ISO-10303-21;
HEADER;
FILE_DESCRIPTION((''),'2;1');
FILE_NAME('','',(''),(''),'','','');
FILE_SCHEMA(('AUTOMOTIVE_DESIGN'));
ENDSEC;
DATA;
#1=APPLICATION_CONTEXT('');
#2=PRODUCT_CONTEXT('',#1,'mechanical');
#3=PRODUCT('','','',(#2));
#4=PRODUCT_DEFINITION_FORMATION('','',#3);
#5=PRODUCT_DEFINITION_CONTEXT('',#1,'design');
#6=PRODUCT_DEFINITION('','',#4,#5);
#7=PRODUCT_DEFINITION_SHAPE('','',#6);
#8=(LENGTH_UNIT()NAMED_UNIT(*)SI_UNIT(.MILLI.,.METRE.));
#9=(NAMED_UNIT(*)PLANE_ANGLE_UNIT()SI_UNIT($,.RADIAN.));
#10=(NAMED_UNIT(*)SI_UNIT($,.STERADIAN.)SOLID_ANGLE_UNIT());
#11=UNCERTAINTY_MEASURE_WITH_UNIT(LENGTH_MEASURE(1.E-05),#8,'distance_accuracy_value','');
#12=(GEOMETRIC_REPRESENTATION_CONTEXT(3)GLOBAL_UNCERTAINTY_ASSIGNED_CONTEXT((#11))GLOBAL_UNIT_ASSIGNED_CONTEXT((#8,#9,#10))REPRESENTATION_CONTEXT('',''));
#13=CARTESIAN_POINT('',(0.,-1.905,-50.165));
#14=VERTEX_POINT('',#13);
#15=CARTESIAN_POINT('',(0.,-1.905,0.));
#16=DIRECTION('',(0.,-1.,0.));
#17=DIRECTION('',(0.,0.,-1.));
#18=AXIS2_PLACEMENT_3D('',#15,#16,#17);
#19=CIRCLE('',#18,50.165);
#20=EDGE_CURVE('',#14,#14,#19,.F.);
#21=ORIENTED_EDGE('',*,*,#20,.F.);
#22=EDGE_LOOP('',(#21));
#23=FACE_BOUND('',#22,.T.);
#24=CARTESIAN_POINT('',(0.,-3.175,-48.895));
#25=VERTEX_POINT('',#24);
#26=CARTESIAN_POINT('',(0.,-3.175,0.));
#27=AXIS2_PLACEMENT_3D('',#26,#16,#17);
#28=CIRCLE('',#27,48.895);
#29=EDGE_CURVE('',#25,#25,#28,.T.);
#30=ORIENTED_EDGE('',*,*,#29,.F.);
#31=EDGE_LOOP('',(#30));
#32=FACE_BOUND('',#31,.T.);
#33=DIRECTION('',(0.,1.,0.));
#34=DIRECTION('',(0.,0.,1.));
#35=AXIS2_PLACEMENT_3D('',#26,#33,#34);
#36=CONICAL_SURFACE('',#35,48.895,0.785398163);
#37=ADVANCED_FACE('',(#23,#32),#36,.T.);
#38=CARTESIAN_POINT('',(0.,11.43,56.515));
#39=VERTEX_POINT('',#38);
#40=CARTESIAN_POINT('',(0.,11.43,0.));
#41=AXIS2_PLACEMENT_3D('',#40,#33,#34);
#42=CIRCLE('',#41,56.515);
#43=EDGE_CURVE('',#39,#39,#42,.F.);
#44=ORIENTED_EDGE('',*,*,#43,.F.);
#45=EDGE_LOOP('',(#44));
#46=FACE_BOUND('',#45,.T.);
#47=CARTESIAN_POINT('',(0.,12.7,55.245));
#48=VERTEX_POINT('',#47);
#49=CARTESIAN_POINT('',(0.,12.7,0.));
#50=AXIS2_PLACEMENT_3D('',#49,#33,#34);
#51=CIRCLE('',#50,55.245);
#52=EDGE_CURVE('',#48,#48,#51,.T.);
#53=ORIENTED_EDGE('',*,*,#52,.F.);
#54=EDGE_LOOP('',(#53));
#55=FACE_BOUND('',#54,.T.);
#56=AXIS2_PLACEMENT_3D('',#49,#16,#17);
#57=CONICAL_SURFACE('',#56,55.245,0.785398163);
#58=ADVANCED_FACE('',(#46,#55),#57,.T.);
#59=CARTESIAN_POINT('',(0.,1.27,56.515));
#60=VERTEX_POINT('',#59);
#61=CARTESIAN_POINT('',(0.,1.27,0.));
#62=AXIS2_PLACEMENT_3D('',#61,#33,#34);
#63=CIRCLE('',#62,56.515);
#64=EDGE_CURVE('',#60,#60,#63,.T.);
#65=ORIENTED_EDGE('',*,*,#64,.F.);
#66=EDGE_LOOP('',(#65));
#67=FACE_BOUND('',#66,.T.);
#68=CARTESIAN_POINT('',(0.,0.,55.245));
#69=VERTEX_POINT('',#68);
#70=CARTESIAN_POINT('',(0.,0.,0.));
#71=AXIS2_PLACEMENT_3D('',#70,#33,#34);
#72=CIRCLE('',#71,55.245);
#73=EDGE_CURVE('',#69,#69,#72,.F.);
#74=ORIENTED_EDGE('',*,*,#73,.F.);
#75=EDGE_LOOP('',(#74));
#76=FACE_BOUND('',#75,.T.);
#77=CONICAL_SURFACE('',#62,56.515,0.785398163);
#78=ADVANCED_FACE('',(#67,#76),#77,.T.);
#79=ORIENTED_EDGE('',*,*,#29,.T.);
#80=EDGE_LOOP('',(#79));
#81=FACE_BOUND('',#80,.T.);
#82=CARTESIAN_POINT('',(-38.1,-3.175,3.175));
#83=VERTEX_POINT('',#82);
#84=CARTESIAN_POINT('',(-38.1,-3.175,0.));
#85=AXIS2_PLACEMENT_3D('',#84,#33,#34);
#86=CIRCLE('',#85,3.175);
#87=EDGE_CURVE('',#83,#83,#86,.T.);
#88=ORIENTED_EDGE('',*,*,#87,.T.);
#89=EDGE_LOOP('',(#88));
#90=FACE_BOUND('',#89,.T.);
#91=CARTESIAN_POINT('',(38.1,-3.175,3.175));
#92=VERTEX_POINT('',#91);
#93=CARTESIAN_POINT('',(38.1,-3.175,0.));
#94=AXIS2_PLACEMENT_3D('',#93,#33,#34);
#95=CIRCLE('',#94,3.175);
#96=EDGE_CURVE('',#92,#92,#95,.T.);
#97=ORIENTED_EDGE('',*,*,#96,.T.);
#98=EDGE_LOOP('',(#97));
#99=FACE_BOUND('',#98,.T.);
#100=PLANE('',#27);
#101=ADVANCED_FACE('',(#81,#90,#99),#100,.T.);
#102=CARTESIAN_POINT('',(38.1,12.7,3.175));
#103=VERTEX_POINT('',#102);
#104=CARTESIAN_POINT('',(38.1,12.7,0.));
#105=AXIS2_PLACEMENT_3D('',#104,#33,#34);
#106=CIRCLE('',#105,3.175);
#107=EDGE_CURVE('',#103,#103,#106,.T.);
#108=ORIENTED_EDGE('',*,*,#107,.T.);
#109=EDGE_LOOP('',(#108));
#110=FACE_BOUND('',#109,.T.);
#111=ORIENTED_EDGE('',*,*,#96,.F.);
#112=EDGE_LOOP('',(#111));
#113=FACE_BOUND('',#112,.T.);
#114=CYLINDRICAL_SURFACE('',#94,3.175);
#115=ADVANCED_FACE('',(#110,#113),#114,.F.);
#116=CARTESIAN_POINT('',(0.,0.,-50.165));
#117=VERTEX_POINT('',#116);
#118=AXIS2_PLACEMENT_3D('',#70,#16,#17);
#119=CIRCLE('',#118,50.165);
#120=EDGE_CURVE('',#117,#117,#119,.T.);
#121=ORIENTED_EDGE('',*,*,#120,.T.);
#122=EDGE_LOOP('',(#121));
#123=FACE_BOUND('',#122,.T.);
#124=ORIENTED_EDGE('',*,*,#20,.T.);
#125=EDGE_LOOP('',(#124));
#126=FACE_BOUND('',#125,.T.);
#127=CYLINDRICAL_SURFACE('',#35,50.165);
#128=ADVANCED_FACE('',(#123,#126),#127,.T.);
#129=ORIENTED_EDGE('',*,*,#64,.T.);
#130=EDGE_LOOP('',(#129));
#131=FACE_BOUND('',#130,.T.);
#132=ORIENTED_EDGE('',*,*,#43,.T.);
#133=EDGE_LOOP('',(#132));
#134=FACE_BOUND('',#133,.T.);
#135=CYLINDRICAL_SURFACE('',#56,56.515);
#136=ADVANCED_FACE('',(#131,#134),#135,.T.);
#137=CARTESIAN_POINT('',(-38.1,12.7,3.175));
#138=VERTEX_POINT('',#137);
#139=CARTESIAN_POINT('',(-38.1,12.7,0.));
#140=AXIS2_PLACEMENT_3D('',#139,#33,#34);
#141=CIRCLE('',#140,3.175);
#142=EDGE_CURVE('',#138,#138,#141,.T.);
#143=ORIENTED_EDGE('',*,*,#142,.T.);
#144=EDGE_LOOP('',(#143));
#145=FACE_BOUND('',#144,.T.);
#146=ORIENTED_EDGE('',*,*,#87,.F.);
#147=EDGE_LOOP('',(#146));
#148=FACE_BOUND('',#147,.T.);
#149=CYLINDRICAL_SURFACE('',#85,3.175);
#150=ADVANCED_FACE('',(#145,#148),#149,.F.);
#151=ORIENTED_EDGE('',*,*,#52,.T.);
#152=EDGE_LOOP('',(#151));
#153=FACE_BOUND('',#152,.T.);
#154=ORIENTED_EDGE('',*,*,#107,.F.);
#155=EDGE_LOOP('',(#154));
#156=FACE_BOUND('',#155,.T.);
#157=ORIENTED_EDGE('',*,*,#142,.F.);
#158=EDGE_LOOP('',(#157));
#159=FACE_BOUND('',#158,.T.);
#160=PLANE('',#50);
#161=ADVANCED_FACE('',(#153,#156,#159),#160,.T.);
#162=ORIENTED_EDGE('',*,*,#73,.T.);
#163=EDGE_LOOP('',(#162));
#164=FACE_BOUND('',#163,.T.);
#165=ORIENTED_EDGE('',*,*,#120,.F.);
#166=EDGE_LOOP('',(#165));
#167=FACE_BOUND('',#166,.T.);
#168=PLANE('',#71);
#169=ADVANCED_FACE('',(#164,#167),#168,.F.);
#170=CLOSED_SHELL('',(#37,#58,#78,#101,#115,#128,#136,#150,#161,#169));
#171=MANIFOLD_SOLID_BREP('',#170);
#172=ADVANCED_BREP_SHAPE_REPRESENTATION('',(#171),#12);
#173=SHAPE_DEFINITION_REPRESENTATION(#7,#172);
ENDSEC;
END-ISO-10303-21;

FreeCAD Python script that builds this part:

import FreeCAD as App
import Part
import Sketcher
Q = App.Units.Quantity


def edges_at(feature, points):
    """Names of the edges that pass closest to the given points."""
    edges = feature.Shape.Edges
    near = lambda p: min(range(len(edges)), key=lambda i: edges[i].distToShape(Part.Vertex(*p))[0])
    return sorted({f"Edge{near(p) + 1}" for p in points})

doc = App.newDocument("Part")
params = doc.addObject("Spreadsheet::Sheet", "Params")
for row, (alias, value) in enumerate([
    ("sketch1_diameter", "4.45 in"),
    ("pad1_length", "0.5 in"),
    ("chamfer_size", "0.05 in"),
    ("sketch2_diameter", "3.95 in"),
    ("pad2_length", "0.125 in"),
    ("chamfer2_size", "0.05 in"),
    ("sketch3_diameter", "0.25 in"),
], start=1):
    params.set(f"A{row}", alias)
    params.set(f"B{row}", "=" + value)
    params.setAlias(f"B{row}", alias)

body = doc.addObject("PartDesign::Body", "Body")

# Sketch on XZ plane
sketch1 = doc.addObject("Sketcher::SketchObject", "Sketch")
body.addObject(sketch1)
sketch1.AttachmentSupport = (doc.XZ_Plane, [""])
sketch1.MapMode = "FlatFace"
sketch1.addGeometry(Part.Circle(App.Vector(0, 0, 0), App.Vector(0, 0, 1), 57), False)
sketch1.addConstraint([
    Sketcher.Constraint("Coincident", 0, 3, -1, 1),
    Sketcher.Constraint("Diameter", 0, Q("4.45 in")),
])
sketch1.setExpression("Constraints[1]", "Params.sketch1_diameter")
pad1 = doc.addObject("PartDesign::Pad", "Pad")
body.addObject(pad1)
pad1.Profile = sketch1
pad1.setExpression("Length", "Params.pad1_length")
pad1.Reversed = True
doc.recompute()

chamfer = doc.addObject("PartDesign::Chamfer", "Chamfer")
body.addObject(chamfer)
chamfer.Base = (pad1, edges_at(pad1, [(-56.515, 0, 0), (-56.515, 12.7, 0)]))
chamfer.setExpression("Size", "Params.chamfer_size")

# Sketch on XZ plane
sketch2 = doc.addObject("Sketcher::SketchObject", "Sketch001")
body.addObject(sketch2)
sketch2.AttachmentSupport = (doc.XZ_Plane, [""])
sketch2.MapMode = "FlatFace"
sketch2.addGeometry(Part.Circle(App.Vector(0, 0, 0), App.Vector(0, 0, 1), 50), False)
sketch2.addConstraint([
    Sketcher.Constraint("Coincident", 0, 3, -1, 1),
    Sketcher.Constraint("Diameter", 0, Q("3.95 in")),
])
sketch2.setExpression("Constraints[1]", "Params.sketch2_diameter")
pad2 = doc.addObject("PartDesign::Pad", "Pad001")
body.addObject(pad2)
pad2.Profile = sketch2
pad2.setExpression("Length", "Params.pad2_length")
doc.recompute()

chamfer2 = doc.addObject("PartDesign::Chamfer", "Chamfer001")
body.addObject(chamfer2)
chamfer2.Base = (pad2, edges_at(pad2, [(-50.165, -3.175, 0)]))
chamfer2.setExpression("Size", "Params.chamfer2_size")

# Sketch on XZ plane
sketch3 = doc.addObject("Sketcher::SketchObject", "Sketch002")
body.addObject(sketch3)
sketch3.AttachmentSupport = (doc.XZ_Plane, [""])
sketch3.MapMode = "FlatFace"
sketch3.AttachmentOffset = App.Placement(App.Vector(0, 0, -0.5 * 25.4), App.Rotation())
sketch3.addGeometry([
    Part.Circle(App.Vector(-38.1, 0, 0), App.Vector(0, 0, 1), 3.2),
    Part.Circle(App.Vector(38.1, 0, 0), App.Vector(0, 0, 1), 3.2),
], False)
sketch3.addConstraint([
    Sketcher.Constraint("Equal", 0, 1),
    Sketcher.Constraint("Symmetric", 0, 3, 1, 3, -1, 1),
    Sketcher.Constraint("PointOnObject", 0, 3, -1),
    Sketcher.Constraint("Diameter", 0, Q("0.25 in")),
    Sketcher.Constraint("DistanceX", 0, 3, 1, 3, Q("3 in")),
])
sketch3.setExpression("Constraints[3]", "Params.sketch3_diameter")
pocket1 = doc.addObject("PartDesign::Pocket", "Pocket")
body.addObject(pocket1)
pocket1.Profile = sketch3
pocket1.Type = "ThroughAll"
pocket1.Reversed = True

doc.recompute()
